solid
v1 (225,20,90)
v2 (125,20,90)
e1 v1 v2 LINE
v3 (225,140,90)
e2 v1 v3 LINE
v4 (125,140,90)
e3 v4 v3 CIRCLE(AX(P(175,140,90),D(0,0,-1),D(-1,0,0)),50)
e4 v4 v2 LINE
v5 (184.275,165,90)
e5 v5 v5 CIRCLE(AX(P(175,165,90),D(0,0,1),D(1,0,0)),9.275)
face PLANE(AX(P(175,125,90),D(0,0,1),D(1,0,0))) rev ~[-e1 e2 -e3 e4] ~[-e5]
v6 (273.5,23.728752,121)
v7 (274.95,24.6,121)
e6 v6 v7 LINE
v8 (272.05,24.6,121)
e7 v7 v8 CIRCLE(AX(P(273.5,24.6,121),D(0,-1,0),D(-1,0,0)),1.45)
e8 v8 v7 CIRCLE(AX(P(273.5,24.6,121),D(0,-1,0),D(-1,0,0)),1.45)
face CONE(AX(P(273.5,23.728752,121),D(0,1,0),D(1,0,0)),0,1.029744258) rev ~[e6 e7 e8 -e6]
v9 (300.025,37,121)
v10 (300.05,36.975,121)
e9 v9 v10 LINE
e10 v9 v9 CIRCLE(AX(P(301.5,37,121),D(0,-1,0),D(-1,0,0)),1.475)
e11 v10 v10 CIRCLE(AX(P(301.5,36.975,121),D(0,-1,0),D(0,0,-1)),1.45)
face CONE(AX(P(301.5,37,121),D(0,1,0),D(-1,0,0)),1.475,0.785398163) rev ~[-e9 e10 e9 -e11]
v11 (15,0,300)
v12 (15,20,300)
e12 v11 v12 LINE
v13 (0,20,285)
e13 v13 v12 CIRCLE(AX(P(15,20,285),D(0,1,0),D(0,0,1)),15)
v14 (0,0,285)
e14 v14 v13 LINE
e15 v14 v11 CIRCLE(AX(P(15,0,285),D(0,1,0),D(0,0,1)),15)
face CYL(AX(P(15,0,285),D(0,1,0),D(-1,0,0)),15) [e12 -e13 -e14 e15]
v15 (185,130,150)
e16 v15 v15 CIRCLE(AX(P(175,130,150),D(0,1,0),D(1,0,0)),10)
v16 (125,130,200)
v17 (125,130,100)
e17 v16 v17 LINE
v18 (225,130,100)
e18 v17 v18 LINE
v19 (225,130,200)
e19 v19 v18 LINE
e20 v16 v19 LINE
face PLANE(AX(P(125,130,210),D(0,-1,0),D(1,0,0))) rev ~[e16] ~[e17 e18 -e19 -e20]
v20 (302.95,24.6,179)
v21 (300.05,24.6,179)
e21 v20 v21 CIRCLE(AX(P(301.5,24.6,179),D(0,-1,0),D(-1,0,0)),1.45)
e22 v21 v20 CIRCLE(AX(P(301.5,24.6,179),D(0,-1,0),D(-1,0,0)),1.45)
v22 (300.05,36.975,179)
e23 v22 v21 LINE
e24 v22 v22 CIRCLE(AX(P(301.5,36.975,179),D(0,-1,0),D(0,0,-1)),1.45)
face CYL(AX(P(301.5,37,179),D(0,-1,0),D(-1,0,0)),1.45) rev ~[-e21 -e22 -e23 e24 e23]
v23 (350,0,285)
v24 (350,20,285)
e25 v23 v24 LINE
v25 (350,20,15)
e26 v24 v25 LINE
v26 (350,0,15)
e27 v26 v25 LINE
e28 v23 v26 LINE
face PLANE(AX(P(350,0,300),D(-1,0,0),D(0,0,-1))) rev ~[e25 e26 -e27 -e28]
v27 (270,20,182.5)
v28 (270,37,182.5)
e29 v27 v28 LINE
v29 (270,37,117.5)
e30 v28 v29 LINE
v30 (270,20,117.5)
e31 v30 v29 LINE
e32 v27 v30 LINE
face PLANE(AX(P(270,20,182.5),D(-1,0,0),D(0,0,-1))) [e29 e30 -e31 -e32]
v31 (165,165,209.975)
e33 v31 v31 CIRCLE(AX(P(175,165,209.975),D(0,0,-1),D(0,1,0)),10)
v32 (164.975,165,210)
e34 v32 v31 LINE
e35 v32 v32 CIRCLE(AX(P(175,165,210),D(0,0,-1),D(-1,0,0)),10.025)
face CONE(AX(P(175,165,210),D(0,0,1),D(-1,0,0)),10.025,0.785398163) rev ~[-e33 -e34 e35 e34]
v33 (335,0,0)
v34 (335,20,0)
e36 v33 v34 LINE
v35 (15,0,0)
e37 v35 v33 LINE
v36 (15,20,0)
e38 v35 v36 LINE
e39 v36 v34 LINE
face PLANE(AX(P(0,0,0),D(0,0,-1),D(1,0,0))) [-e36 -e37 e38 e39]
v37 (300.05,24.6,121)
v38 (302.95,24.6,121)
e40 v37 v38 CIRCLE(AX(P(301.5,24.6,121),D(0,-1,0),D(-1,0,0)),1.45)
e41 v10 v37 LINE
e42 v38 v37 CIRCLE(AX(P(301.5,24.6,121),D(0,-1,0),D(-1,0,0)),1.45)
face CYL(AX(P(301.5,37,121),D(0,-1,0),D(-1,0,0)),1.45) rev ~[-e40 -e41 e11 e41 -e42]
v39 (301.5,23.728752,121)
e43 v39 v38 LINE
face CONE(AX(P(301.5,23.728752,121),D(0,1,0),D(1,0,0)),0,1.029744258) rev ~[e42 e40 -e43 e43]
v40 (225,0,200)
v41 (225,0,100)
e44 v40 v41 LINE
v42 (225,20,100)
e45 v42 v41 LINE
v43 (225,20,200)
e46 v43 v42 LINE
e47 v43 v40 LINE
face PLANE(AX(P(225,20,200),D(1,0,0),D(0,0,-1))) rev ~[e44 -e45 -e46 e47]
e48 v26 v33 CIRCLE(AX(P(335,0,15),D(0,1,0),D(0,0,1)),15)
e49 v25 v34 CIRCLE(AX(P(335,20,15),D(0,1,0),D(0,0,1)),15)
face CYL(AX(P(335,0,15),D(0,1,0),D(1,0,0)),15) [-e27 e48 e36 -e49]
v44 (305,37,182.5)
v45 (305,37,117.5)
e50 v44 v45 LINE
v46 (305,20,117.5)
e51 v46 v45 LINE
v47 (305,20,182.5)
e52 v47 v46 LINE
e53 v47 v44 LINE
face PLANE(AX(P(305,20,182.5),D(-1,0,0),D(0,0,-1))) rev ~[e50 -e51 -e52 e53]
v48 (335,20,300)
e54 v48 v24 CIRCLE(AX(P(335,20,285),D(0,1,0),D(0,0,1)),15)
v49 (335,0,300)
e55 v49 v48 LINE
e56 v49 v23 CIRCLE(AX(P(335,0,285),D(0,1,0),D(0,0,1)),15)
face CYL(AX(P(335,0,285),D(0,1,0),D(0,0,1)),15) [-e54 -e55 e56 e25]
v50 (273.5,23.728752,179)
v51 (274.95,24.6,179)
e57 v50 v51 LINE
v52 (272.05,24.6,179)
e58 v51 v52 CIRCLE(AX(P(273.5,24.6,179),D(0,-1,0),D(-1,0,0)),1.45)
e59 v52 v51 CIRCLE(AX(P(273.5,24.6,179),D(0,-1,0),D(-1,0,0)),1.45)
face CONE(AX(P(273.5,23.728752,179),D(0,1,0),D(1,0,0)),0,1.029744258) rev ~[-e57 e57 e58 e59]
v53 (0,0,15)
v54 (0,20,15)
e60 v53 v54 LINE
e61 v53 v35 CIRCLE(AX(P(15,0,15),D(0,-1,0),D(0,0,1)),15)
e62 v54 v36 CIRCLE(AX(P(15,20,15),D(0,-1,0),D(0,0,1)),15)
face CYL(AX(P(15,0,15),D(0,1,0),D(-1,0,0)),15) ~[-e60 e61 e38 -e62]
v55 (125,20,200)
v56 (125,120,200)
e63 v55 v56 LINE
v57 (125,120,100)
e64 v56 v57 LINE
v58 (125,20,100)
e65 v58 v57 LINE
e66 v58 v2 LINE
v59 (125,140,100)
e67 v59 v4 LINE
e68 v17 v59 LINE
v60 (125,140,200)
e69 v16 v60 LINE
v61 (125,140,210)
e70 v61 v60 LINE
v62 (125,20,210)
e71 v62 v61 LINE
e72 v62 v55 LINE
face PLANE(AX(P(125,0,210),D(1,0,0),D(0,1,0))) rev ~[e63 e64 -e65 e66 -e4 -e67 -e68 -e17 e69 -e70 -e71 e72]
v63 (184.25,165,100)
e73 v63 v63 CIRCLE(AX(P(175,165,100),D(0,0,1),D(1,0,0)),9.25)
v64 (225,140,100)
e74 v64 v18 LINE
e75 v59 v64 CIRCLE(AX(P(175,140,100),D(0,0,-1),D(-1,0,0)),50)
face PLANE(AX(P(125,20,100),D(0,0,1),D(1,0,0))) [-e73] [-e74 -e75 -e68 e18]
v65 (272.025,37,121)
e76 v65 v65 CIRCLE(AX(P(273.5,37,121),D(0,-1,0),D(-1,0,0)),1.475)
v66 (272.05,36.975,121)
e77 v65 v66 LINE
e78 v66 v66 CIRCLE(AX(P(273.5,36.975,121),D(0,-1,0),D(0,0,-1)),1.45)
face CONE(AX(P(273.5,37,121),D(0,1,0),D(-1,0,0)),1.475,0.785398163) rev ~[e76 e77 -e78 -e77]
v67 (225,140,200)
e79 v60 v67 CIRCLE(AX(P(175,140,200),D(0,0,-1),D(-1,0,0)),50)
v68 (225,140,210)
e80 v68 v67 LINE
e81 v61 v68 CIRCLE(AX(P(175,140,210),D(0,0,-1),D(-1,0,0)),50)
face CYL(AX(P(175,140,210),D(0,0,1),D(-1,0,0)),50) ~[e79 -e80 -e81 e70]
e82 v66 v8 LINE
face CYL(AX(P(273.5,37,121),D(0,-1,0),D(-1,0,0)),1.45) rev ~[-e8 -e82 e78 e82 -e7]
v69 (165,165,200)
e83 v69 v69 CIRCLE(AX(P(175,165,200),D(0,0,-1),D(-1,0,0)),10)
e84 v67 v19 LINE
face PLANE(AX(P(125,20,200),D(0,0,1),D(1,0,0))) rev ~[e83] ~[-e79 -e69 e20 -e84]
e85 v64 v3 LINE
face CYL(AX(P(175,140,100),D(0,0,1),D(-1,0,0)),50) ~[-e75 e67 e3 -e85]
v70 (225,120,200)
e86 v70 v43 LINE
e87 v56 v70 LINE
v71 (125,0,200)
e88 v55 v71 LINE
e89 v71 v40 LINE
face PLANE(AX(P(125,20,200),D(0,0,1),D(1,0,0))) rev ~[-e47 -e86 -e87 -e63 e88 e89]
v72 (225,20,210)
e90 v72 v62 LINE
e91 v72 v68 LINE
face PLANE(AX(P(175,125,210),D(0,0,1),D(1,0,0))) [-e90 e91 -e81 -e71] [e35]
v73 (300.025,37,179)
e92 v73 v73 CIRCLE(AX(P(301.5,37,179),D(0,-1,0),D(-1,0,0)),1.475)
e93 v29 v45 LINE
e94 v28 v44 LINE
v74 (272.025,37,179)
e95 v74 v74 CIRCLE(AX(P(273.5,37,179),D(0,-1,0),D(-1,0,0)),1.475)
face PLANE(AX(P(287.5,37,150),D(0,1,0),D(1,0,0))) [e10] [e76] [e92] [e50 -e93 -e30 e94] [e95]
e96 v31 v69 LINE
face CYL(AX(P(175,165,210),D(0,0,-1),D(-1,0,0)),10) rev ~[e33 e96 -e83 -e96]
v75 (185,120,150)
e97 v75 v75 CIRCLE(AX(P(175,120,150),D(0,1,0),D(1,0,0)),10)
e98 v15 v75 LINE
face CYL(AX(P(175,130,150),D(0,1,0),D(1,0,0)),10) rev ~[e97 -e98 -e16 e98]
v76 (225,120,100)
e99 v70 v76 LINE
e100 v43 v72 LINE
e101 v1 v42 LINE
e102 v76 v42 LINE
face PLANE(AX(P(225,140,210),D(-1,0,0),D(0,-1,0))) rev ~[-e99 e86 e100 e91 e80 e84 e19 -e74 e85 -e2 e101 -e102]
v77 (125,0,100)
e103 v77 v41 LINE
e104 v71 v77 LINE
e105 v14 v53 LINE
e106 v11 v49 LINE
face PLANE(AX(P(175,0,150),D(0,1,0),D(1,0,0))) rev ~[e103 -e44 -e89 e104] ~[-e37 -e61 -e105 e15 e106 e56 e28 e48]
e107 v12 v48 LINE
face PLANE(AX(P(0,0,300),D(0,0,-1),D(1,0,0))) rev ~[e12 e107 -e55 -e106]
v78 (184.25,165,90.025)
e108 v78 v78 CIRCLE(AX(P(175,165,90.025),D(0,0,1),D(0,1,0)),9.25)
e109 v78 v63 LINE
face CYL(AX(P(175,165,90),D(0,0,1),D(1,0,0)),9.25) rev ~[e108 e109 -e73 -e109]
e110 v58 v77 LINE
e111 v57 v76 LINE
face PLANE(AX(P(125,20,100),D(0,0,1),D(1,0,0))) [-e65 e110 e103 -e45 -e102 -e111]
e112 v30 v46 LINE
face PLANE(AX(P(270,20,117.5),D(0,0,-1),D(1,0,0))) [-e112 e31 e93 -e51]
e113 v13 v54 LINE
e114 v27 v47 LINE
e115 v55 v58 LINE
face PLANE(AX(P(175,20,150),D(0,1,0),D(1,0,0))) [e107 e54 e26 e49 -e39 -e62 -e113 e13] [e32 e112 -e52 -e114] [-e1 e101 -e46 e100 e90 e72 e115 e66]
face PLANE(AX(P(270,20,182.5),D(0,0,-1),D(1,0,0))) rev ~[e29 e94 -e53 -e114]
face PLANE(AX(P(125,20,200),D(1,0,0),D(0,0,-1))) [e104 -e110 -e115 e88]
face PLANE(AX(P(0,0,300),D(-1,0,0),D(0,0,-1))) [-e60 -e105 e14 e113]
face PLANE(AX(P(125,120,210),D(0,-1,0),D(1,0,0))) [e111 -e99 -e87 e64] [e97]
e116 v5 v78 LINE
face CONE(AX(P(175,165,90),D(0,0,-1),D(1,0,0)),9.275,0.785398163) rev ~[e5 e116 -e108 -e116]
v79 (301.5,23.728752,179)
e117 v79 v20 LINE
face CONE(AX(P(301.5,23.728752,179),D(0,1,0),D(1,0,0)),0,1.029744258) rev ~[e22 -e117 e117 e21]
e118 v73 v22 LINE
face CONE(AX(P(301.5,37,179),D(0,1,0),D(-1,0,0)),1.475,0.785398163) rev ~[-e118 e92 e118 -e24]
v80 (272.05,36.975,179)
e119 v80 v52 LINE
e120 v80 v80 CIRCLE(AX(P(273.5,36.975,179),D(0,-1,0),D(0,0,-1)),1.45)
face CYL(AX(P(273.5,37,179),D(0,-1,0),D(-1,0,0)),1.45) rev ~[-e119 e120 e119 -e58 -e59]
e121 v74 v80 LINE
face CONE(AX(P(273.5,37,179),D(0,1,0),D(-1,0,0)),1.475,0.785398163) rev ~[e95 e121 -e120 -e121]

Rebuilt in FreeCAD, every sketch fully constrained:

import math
import FreeCAD as App
import Part
import Sketcher

V = App.Vector
Q = App.Units.Quantity


def edges_at(feature, points):
    """Names of the edges that pass closest to the given points."""
    edges = feature.Shape.Edges
    near = lambda p: min(range(len(edges)), key=lambda i: edges[i].distToShape(Part.Vertex(*p))[0])
    return sorted({f"Edge{near(p) + 1}" for p in points})

doc = App.newDocument("Part")
body = doc.addObject("PartDesign::Body", "Body")

# Sketch on XZ plane
sketch1 = body.newObject("Sketcher::SketchObject", "Sketch")
sketch1.AttachmentSupport = (doc.getObject("XZ_Plane"), [""])
sketch1.MapMode = "FlatFace"
sketch1.addGeometry([
    Part.LineSegment(V(0, 0, 0), V(0, 300, 0)),
    Part.LineSegment(V(0, 300, 0), V(350, 300, 0)),
    Part.LineSegment(V(350, 300, 0), V(350, 0, 0)),
    Part.LineSegment(V(350, 0, 0), V(0, 0, 0)),
], False)
sketch1.addConstraint([
    Sketcher.Constraint("Coincident", 0, 2, 1, 1),
    Sketcher.Constraint("Coincident", 1, 2, 2, 1),
    Sketcher.Constraint("Coincident", 2, 2, 3, 1),
    Sketcher.Constraint("Coincident", 3, 2, 0, 1),
    Sketcher.Constraint("Vertical", 0),
    Sketcher.Constraint("Horizontal", 1),
    Sketcher.Constraint("Vertical", 2),
    Sketcher.Constraint("Horizontal", 3),
    Sketcher.Constraint("Coincident", 3, 2, -1, 1),
    Sketcher.Constraint("DistanceX", 1, 1, 1, 2, Q("350 mm")),
    Sketcher.Constraint("DistanceY", 0, 1, 0, 2, Q("300 mm")),
])
pad1 = body.newObject("PartDesign::Pad", "Pad")
pad1.Profile = sketch1
pad1.Length = 20
pad1.Reversed = True
doc.recompute()

fillet = body.newObject("PartDesign::Fillet", "Fillet")
fillet.Base = (pad1, edges_at(pad1, [
    (0, 10, 0),
    (350, 10, 0),
    (350, 10, 300),
    (0, 10, 300),
]))
fillet.Radius = 15

# Sketch on XZ plane
sketch2 = body.newObject("Sketcher::SketchObject", "Sketch001")
sketch2.AttachmentSupport = (doc.getObject("XZ_Plane"), [""])
sketch2.MapMode = "FlatFace"
sketch2.AttachmentOffset = App.Placement(V(0, 0, -20), App.Rotation())
sketch2.addGeometry([
    Part.LineSegment(V(125, 100, 0), V(125, 200, 0)),
    Part.LineSegment(V(125, 200, 0), V(225, 200, 0)),
    Part.LineSegment(V(225, 200, 0), V(225, 100, 0)),
    Part.LineSegment(V(225, 100, 0), V(125, 100, 0)),
], False)
sketch2.addConstraint([
    Sketcher.Constraint("Coincident", 0, 2, 1, 1),
    Sketcher.Constraint("Coincident", 1, 2, 2, 1),
    Sketcher.Constraint("Coincident", 2, 2, 3, 1),
    Sketcher.Constraint("Coincident", 3, 2, 0, 1),
    Sketcher.Constraint("Vertical", 0),
    Sketcher.Constraint("Horizontal", 1),
    Sketcher.Constraint("Vertical", 2),
    Sketcher.Constraint("Horizontal", 3),
    Sketcher.Constraint("Equal", 3, 0),
    Sketcher.Constraint("DistanceX", 1, 1, 1, 2, Q("100 mm")),
    Sketcher.Constraint("DistanceX", -1, 1, 0, 2, Q("125 mm")),
    Sketcher.Constraint("DistanceY", -1, 1, 0, 2, Q("200 mm")),
])
pocket1 = body.newObject("PartDesign::Pocket", "Pocket")
pocket1.Profile = sketch2
pocket1.Length = 20
pocket1.Reversed = True

# Sketch on XY plane
sketch3 = body.newObject("Sketcher::SketchObject", "Sketch002")
sketch3.AttachmentSupport = (doc.getObject("XY_Plane"), [""])
sketch3.MapMode = "FlatFace"
sketch3.AttachmentOffset = App.Placement(V(0, 0, 100), App.Rotation())
sketch3.addGeometry([
    Part.LineSegment(V(125, 140, 0), V(125, 0, 0)),
    Part.LineSegment(V(125, 0, 0), V(225, 0, 0)),
    Part.LineSegment(V(225, 0, 0), V(225, 140, 0)),
    Part.ArcOfCircle(Part.Circle(V(175, 140, 0), V(0, 0, 1), 50), math.radians(0), math.radians(180)),
], False)
sketch3.addConstraint([
    Sketcher.Constraint("Coincident", 0, 2, 1, 1),
    Sketcher.Constraint("Coincident", 1, 2, 2, 1),
    Sketcher.Constraint("Tangent", 2, 2, 3, 1),
    Sketcher.Constraint("Tangent", 3, 2, 0, 1),
    Sketcher.Constraint("Vertical", 0),
    Sketcher.Constraint("Horizontal", 1),
    Sketcher.Constraint("Vertical", 2),
    Sketcher.Constraint("PointOnObject", 0, 2, -1),
    Sketcher.Constraint("Radius", 3, Q("50 mm")),
    Sketcher.Constraint("DistanceY", 0, 2, 0, 1, Q("140 mm")),
    Sketcher.Constraint("DistanceX", -1, 1, 3, 3, Q("175 mm")),
])
pad2 = body.newObject("PartDesign::Pad", "Pad001")
pad2.Profile = sketch3
pad2.Length = 10
pad2.Reversed = True
doc.recompute()

linearpattern = body.newObject("PartDesign::LinearPattern", "LinearPattern")
linearpattern.Originals = [pad2]
linearpattern.Direction = (doc.getObject("Z_Axis"), [""])
linearpattern.Mode = "offset"
linearpattern.Offset = 110
linearpattern.Occurrences = 2
body.Tip = linearpattern

# Sketch on XY plane
sketch4 = body.newObject("Sketcher::SketchObject", "Sketch003")
sketch4.AttachmentSupport = (doc.getObject("XY_Plane"), [""])
sketch4.MapMode = "FlatFace"
sketch4.AttachmentOffset = App.Placement(V(0, 0, 210), App.Rotation())
sketch4.addGeometry(Part.Circle(V(175, 165, 0), V(0, 0, 1), 10), False)
sketch4.addConstraint([
    Sketcher.Constraint("Diameter", 0, Q("20 mm")),
    Sketcher.Constraint("DistanceX", -1, 1, 0, 3, Q("175 mm")),
    Sketcher.Constraint("DistanceY", -1, 1, 0, 3, Q("165 mm")),
])
doc.recompute()
hole = body.newObject("PartDesign::Hole", "Hole")
hole.Profile = sketch4
hole.ThreadType = "None"
hole.Diameter = 20
hole.DepthType = "Dimension"
hole.Depth = 10
hole.DrillPoint = "Angled"
hole.DrillPointAngle = 118
hole.HoleCutType = "Countersink"
hole.HoleCutDiameter = 20.05
hole.HoleCutCountersinkAngle = 90

# Sketch on XY plane
sketch5 = body.newObject("Sketcher::SketchObject", "Sketch004")
sketch5.AttachmentSupport = (doc.getObject("XY_Plane"), [""])
sketch5.MapMode = "FlatFace"
sketch5.AttachmentOffset = App.Placement(V(0, 0, 90), App.Rotation())
sketch5.addGeometry(Part.Circle(V(175, 165, 0), V(0, 0, 1), 9), False)
sketch5.addConstraint([
    Sketcher.Constraint("Diameter", 0, Q("18.5 mm")),
    Sketcher.Constraint("DistanceX", -1, 1, 0, 3, Q("175 mm")),
    Sketcher.Constraint("DistanceY", -1, 1, 0, 3, Q("165 mm")),
])
doc.recompute()
hole2 = body.newObject("PartDesign::Hole", "Hole001")
hole2.Profile = sketch5
hole2.ThreadType = "None"
hole2.Diameter = 18.5
hole2.DepthType = "Dimension"
hole2.Depth = 10
hole2.DrillPoint = "Angled"
hole2.DrillPointAngle = 118
hole2.HoleCutType = "Countersink"
hole2.HoleCutDiameter = 18.55
hole2.HoleCutCountersinkAngle = 90
hole2.Reversed = True

# Sketch on XY plane
sketch6 = body.newObject("Sketcher::SketchObject", "Sketch005")
sketch6.AttachmentSupport = (doc.getObject("XY_Plane"), [""])
sketch6.MapMode = "FlatFace"
sketch6.AttachmentOffset = App.Placement(V(0, 0, 210), App.Rotation())
sketch6.addGeometry([
    Part.LineSegment(V(125, 130, 0), V(125, 120, 0)),
    Part.LineSegment(V(125, 120, 0), V(225, 120, 0)),
    Part.LineSegment(V(225, 120, 0), V(225, 130, 0)),
    Part.LineSegment(V(225, 130, 0), V(125, 130, 0)),
], False)
sketch6.addConstraint([
    Sketcher.Constraint("Coincident", 0, 2, 1, 1),
    Sketcher.Constraint("Coincident", 1, 2, 2, 1),
    Sketcher.Constraint("Coincident", 2, 2, 3, 1),
    Sketcher.Constraint("Coincident", 3, 2, 0, 1),
    Sketcher.Constraint("Vertical", 0),
    Sketcher.Constraint("Horizontal", 1),
    Sketcher.Constraint("Vertical", 2),
    Sketcher.Constraint("Horizontal", 3),
    Sketcher.Constraint("DistanceX", 1, 1, 1, 2, Q("100 mm")),
    Sketcher.Constraint("DistanceY", 0, 2, 0, 1, Q("10 mm")),
    Sketcher.Constraint("DistanceX", -1, 1, 0, 2, Q("125 mm")),
    Sketcher.Constraint("DistanceY", -1, 1, 0, 2, Q("120 mm")),
])
pad3 = body.newObject("PartDesign::Pad", "Pad002")
pad3.Profile = sketch6
pad3.Length = 120
pad3.Reversed = True

# Sketch on XZ plane
sketch7 = body.newObject("Sketcher::SketchObject", "Sketch006")
sketch7.AttachmentSupport = (doc.getObject("XZ_Plane"), [""])
sketch7.MapMode = "FlatFace"
sketch7.AttachmentOffset = App.Placement(V(0, 0, -130), App.Rotation())
sketch7.addGeometry(Part.Circle(V(175, 150, 0), V(0, 0, 1), 10), False)
sketch7.addConstraint([
    Sketcher.Constraint("Diameter", 0, Q("20 mm")),
    Sketcher.Constraint("DistanceX", -1, 1, 0, 3, Q("175 mm")),
    Sketcher.Constraint("DistanceY", -1, 1, 0, 3, Q("150 mm")),
])
pocket2 = body.newObject("PartDesign::Pocket", "Pocket001")
pocket2.Profile = sketch7
pocket2.Length = 36.078317
pocket2.Reversed = True

# Sketch on XZ plane
sketch8 = body.newObject("Sketcher::SketchObject", "Sketch007")
sketch8.AttachmentSupport = (doc.getObject("XZ_Plane"), [""])
sketch8.MapMode = "FlatFace"
sketch8.AttachmentOffset = App.Placement(V(0, 0, -20), App.Rotation())
sketch8.addGeometry([
    Part.LineSegment(V(270, 118, 0), V(270, 182, 0)),
    Part.LineSegment(V(270, 182, 0), V(305, 182, 0)),
    Part.LineSegment(V(305, 182, 0), V(305, 118, 0)),
    Part.LineSegment(V(305, 118, 0), V(270, 118, 0)),
], False)
sketch8.addConstraint([
    Sketcher.Constraint("Coincident", 0, 2, 1, 1),
    Sketcher.Constraint("Coincident", 1, 2, 2, 1),
    Sketcher.Constraint("Coincident", 2, 2, 3, 1),
    Sketcher.Constraint("Coincident", 3, 2, 0, 1),
    Sketcher.Constraint("Vertical", 0),
    Sketcher.Constraint("Horizontal", 1),
    Sketcher.Constraint("Vertical", 2),
    Sketcher.Constraint("Horizontal", 3),
    Sketcher.Constraint("DistanceX", 1, 1, 1, 2, Q("35 mm")),
    Sketcher.Constraint("DistanceY", 0, 1, 0, 2, Q("65 mm")),
    Sketcher.Constraint("DistanceX", -1, 1, 0, 2, Q("270 mm")),
    Sketcher.Constraint("DistanceY", -1, 1, 0, 2, Q("182.5 mm")),
])
pad4 = body.newObject("PartDesign::Pad", "Pad003")
pad4.Profile = sketch8
pad4.Length = 17
pad4.Reversed = True

# Sketch on XZ plane
sketch9 = body.newObject("Sketcher::SketchObject", "Sketch008")
sketch9.AttachmentSupport = (doc.getObject("XZ_Plane"), [""])
sketch9.MapMode = "FlatFace"
sketch9.AttachmentOffset = App.Placement(V(0, 0, -37), App.Rotation())
sketch9.addGeometry([
    Part.Circle(V(273.5, 121, 0), V(0, 0, 1), 1.4),
    Part.Circle(V(301.5, 121, 0), V(0, 0, 1), 1.4),
    Part.Circle(V(301.5, 179, 0), V(0, 0, 1), 1.4),
    Part.Circle(V(273.5, 179, 0), V(0, 0, 1), 1.4),
], False)
sketch9.addConstraint([
    Sketcher.Constraint("Equal", 0, 1),
    Sketcher.Constraint("Equal", 1, 2),
    Sketcher.Constraint("Equal", 2, 3),
    Sketcher.Constraint("Horizontal", 0, 3, 1, 3),
    Sketcher.Constraint("Horizontal", 2, 3, 3, 3),
    Sketcher.Constraint("Vertical", 1, 3, 2, 3),
    Sketcher.Constraint("Vertical", 0, 3, 3, 3),
    Sketcher.Constraint("Diameter", 0, Q("2.9 mm")),
    Sketcher.Constraint("DistanceY", -1, 1, 0, 3, Q("121 mm")),
    Sketcher.Constraint("DistanceY", -1, 1, 2, 3, Q("179 mm")),
    Sketcher.Constraint("DistanceX", 0, 3, 1, 3, Q("28 mm")),
    Sketcher.Constraint("DistanceX", -1, 1, 0, 3, Q("273.5 mm")),
])
doc.recompute()
hole3 = body.newObject("PartDesign::Hole", "Hole002")
hole3.Profile = sketch9
hole3.ThreadType = "None"
hole3.Diameter = 2.9
hole3.DepthType = "Dimension"
hole3.Depth = 12.4
hole3.DrillPoint = "Angled"
hole3.DrillPointAngle = 118
hole3.HoleCutType = "Countersink"
hole3.HoleCutDiameter = 2.95
hole3.HoleCutCountersinkAngle = 90
hole3.Reversed = True

doc.recompute()
